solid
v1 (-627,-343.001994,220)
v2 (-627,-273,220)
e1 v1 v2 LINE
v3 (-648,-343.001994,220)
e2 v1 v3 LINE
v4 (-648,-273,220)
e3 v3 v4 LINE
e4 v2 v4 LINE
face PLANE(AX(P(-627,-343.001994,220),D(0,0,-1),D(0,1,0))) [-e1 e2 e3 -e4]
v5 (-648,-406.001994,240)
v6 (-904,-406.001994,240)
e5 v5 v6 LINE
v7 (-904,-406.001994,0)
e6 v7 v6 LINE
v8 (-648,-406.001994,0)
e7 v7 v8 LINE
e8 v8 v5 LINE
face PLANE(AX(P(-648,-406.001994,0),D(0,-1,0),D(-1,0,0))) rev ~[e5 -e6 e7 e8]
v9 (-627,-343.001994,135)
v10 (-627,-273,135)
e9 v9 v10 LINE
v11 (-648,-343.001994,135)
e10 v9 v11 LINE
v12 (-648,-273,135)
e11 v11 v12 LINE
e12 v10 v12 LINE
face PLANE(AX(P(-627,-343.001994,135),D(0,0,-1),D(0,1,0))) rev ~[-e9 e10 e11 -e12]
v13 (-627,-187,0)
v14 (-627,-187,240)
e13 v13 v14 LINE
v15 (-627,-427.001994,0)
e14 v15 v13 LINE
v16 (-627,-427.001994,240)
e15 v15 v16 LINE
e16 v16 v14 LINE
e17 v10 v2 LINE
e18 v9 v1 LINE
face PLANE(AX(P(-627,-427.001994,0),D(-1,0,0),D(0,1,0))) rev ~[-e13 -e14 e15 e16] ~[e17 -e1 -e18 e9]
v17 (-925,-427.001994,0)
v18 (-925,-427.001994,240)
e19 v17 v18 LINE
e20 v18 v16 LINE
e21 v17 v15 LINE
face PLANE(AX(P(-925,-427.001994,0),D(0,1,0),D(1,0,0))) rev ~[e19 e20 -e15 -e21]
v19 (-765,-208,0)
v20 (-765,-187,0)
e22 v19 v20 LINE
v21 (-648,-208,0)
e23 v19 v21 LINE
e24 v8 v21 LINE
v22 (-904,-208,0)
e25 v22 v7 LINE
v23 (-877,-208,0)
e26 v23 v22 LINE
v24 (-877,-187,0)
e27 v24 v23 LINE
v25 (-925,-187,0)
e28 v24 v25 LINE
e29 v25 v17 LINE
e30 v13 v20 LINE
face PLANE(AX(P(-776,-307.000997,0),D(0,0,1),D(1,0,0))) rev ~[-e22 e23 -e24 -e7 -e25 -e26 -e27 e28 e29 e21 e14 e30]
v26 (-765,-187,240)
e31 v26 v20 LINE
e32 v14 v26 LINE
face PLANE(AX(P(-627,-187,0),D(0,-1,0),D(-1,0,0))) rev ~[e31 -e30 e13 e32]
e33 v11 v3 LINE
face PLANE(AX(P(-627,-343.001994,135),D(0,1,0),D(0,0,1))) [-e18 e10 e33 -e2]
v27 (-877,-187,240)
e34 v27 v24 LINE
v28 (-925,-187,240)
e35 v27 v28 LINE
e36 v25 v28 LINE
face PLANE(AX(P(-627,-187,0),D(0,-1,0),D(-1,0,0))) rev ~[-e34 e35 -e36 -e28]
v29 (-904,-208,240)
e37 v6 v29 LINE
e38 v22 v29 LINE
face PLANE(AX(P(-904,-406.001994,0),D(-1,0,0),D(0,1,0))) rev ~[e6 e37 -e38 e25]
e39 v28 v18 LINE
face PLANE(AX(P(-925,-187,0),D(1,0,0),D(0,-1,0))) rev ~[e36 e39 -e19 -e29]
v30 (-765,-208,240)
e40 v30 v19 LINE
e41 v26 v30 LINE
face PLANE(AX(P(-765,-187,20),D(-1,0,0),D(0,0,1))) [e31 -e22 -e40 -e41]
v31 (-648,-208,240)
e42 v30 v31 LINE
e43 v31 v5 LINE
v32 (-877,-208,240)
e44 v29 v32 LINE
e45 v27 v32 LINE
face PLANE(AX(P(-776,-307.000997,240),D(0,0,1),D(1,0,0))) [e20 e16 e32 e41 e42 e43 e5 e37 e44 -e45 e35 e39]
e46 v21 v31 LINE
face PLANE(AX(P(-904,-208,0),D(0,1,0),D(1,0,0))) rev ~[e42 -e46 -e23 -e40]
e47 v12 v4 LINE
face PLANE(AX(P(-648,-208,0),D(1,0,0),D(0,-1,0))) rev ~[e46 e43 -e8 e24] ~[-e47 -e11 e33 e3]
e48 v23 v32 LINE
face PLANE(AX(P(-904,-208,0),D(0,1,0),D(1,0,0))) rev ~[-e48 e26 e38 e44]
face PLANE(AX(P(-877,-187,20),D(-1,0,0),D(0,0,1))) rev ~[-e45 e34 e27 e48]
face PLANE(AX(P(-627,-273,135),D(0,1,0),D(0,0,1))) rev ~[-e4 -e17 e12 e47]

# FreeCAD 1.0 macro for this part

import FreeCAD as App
import Part
import Sketcher
from FreeCAD import Vector
Q = App.Units.Quantity


def add_polygon(sketch, points):
    """Adds a closed chain of lines whose ends are joined by coincident constraints."""
    first, n = sketch.GeometryCount, len(points)
    for a, b in zip(points, points[1:] + points[:1]):
        sketch.addGeometry(Part.LineSegment(App.Vector(*a, 0), App.Vector(*b, 0)), False)
    for i in range(n):
        sketch.addConstraint(Sketcher.Constraint("Coincident", first + i, 2, first + (i + 1) % n, 1))

doc = App.newDocument("Part")
params = doc.addObject("Spreadsheet::Sheet", "Params")
for row, (alias, value) in enumerate([
    ("sketch1_width", "298 mm"),
    ("sketch1_width2", "256 mm"),
    ("pad1_length", "240 mm"),
    ("sketch2_width", "256 mm"),
    ("pad2_length", "20 mm"),
    ("sketch3_width", "112 mm"),
    ("pocket1_length", "25 mm"),
    ("sketch4_height", "85 mm"),
    ("pocket2_length", "25 mm"),
    ("sketch5_width", "50 mm"),
    ("pad3_length", "50 mm"),
    ("sketch6_width", "112 mm"),
    ("sketch6_width2", "27 mm"),
    ("sketch6_width3", "206 mm"),
    ("sketch6_height", "21 mm"),
    ("pocket3_length", "25 mm"),
    ("sketch7_width", "50 mm"),
], start=1):
    params.set(f"A{row}", alias)
    params.set(f"B{row}", "=" + value)
    params.setAlias(f"B{row}", alias)

body = doc.addObject("PartDesign::Body", "Body")

# Sketch on XY plane
sketch1 = body.newObject("Sketcher::SketchObject", "Sketch")
sketch1.AttachmentSupport = (doc.getObject("XY_Plane"), [""])
sketch1.MapMode = "FlatFace"
add_polygon(sketch1, [(-627, -187), (-925, -187), (-925, -427), (-627, -427)])  # lines 0-3
add_polygon(sketch1, [(-904, -208), (-648, -208), (-648, -406), (-904, -406)])  # lines 4-7
sketch1.addConstraint(Sketcher.Constraint("Horizontal", 0))
sketch1.addConstraint(Sketcher.Constraint("Vertical", 1))
sketch1.addConstraint(Sketcher.Constraint("Horizontal", 2))
sketch1.addConstraint(Sketcher.Constraint("Vertical", 3))
sketch1.addConstraint(Sketcher.Constraint("Horizontal", 4))
sketch1.addConstraint(Sketcher.Constraint("Vertical", 5))
sketch1.addConstraint(Sketcher.Constraint("Horizontal", 6))
sketch1.addConstraint(Sketcher.Constraint("Vertical", 7))
sketch1.addConstraint(Sketcher.Constraint("DistanceX", 0, 2, 0, 1, Q("298 mm")))
sketch1.addConstraint(Sketcher.Constraint("DistanceX", 4, 1, 4, 2, Q("256 mm")))
sketch1.addConstraint(Sketcher.Constraint("DistanceX", 0, 2, -1, 1, Q("925 mm")))
sketch1.addConstraint(Sketcher.Constraint("DistanceY", 0, 2, -1, 1, Q("187 mm")))
sketch1.addConstraint(Sketcher.Constraint("DistanceX", 4, 2, -1, 1, Q("648 mm")))
sketch1.addConstraint(Sketcher.Constraint("DistanceY", 4, 2, -1, 1, Q("208 mm")))
sketch1.addConstraint(Sketcher.Constraint("DistanceY", 2, 2, 5, 2, Q("21 mm")))
sketch1.addConstraint(Sketcher.Constraint("DistanceY", 1, 2, 1, 1, Q("240.001994 mm")))
sketch1.setExpression("Constraints[16]", "Params.sketch1_width")
sketch1.setExpression("Constraints[17]", "Params.sketch1_width2")
pad1 = body.newObject("PartDesign::Pad", "Pad")
pad1.Profile = sketch1
pad1.setExpression("Length", "Params.pad1_length")

# Sketch on XY plane
sketch2 = body.newObject("Sketcher::SketchObject", "Sketch001")
sketch2.AttachmentSupport = (doc.getObject("XY_Plane"), [""])
sketch2.MapMode = "FlatFace"
add_polygon(sketch2, [(-648, -208), (-904, -208), (-904, -406), (-648, -406)])  # lines 0-3
sketch2.addConstraint(Sketcher.Constraint("Horizontal", 0))
sketch2.addConstraint(Sketcher.Constraint("Vertical", 1))
sketch2.addConstraint(Sketcher.Constraint("Horizontal", 2))
sketch2.addConstraint(Sketcher.Constraint("Vertical", 3))
sketch2.addConstraint(Sketcher.Constraint("DistanceX", 0, 2, 0, 1, Q("256 mm")))
sketch2.addConstraint(Sketcher.Constraint("DistanceX", 0, 2, -1, 1, Q("904 mm")))
sketch2.addConstraint(Sketcher.Constraint("DistanceY", 0, 2, -1, 1, Q("208 mm")))
sketch2.addConstraint(Sketcher.Constraint("DistanceY", 1, 2, 1, 1, Q("198.001994 mm")))
sketch2.setExpression("Constraints[8]", "Params.sketch2_width")
pad2 = body.newObject("PartDesign::Pad", "Pad001")
pad2.Profile = sketch2
pad2.setExpression("Length", "Params.pad2_length")

# Sketch on XZ plane
sketch3 = body.newObject("Sketcher::SketchObject", "Sketch002")
sketch3.AttachmentSupport = (doc.getObject("XZ_Plane"), [""])
sketch3.MapMode = "FlatFace"
sketch3.AttachmentOffset = App.Placement(Vector(0, 0, 187), App.Rotation())
add_polygon(sketch3, [(-765, 261), (-765, 20), (-877, 20), (-877, 261)])  # lines 0-3
sketch3.addConstraint(Sketcher.Constraint("Vertical", 0))
sketch3.addConstraint(Sketcher.Constraint("Horizontal", 1))
sketch3.addConstraint(Sketcher.Constraint("Vertical", 2))
sketch3.addConstraint(Sketcher.Constraint("Horizontal", 3))
sketch3.addConstraint(Sketcher.Constraint("DistanceX", 1, 2, 1, 1, Q("112 mm")))
sketch3.addConstraint(Sketcher.Constraint("DistanceX", 0, 2, -1, 1, Q("765 mm")))
sketch3.addConstraint(Sketcher.Constraint("DistanceY", -1, 1, 0, 2, Q("20 mm")))
sketch3.addConstraint(Sketcher.Constraint("DistanceY", 0, 2, 0, 1, Q("241.106075 mm")))
sketch3.setExpression("Constraints[8]", "Params.sketch3_width")
pocket1 = body.newObject("PartDesign::Pocket", "Pocket")
pocket1.Profile = sketch3
pocket1.setExpression("Length", "Params.pocket1_length")
pocket1.Reversed = True

# Sketch on YZ plane
sketch4 = body.newObject("Sketcher::SketchObject", "Sketch003")
sketch4.AttachmentSupport = (doc.getObject("YZ_Plane"), [""])
sketch4.MapMode = "FlatFace"
sketch4.AttachmentOffset = App.Placement(Vector(0, 0, -627), App.Rotation())
add_polygon(sketch4, [(-343, 220), (-343, 135), (-273, 135), (-273, 220)])  # lines 0-3
sketch4.addConstraint(Sketcher.Constraint("Vertical", 0))
sketch4.addConstraint(Sketcher.Constraint("Horizontal", 1))
sketch4.addConstraint(Sketcher.Constraint("Vertical", 2))
sketch4.addConstraint(Sketcher.Constraint("Horizontal", 3))
sketch4.addConstraint(Sketcher.Constraint("DistanceY", 0, 2, 0, 1, Q("85 mm")))
sketch4.addConstraint(Sketcher.Constraint("DistanceY", -1, 1, 0, 2, Q("135 mm")))
sketch4.addConstraint(Sketcher.Constraint("DistanceX", 1, 2, -1, 1, Q("273 mm")))
sketch4.addConstraint(Sketcher.Constraint("DistanceX", 1, 1, 1, 2, Q("70.001994 mm")))
sketch4.setExpression("Constraints[8]", "Params.sketch4_height")
pocket2 = body.newObject("PartDesign::Pocket", "Pocket001")
pocket2.Profile = sketch4
pocket2.setExpression("Length", "Params.pocket2_length")

# Sketch on XY plane
sketch5 = body.newObject("Sketcher::SketchObject", "Sketch004")
sketch5.AttachmentSupport = (doc.getObject("XY_Plane"), [""])
sketch5.MapMode = "FlatFace"
sketch5.AttachmentOffset = App.Placement(Vector(0, 0, 20), App.Rotation())
add_polygon(sketch5, [(-698, -208), (-698, -406), (-648, -406), (-648, -208)])  # lines 0-3
sketch5.addConstraint(Sketcher.Constraint("Vertical", 0))
sketch5.addConstraint(Sketcher.Constraint("Horizontal", 1))
sketch5.addConstraint(Sketcher.Constraint("Vertical", 2))
sketch5.addConstraint(Sketcher.Constraint("Horizontal", 3))
sketch5.addConstraint(Sketcher.Constraint("DistanceX", 1, 1, 1, 2, Q("50 mm")))
sketch5.addConstraint(Sketcher.Constraint("DistanceX", 0, 2, -1, 1, Q("698 mm")))
sketch5.addConstraint(Sketcher.Constraint("DistanceY", 2, 2, -1, 1, Q("208 mm")))
sketch5.addConstraint(Sketcher.Constraint("DistanceY", 0, 2, 0, 1, Q("198.001994 mm")))
sketch5.setExpression("Constraints[8]", "Params.sketch5_width")
pad3 = body.newObject("PartDesign::Pad", "Pad002")
pad3.Profile = sketch5
pad3.setExpression("Length", "Params.pad3_length")

# Sketch on XY plane
sketch6 = body.newObject("Sketcher::SketchObject", "Sketch005")
sketch6.AttachmentSupport = (doc.getObject("XY_Plane"), [""])
sketch6.MapMode = "FlatFace"
sketch6.AttachmentOffset = App.Placement(Vector(0, 0, 20), App.Rotation())
add_polygon(sketch6, [(-765, -187), (-877, -187), (-877, -208), (-904, -208), (-904, -406), (-698, -406), (-698, -208), (-765, -208)])  # lines 0-7
sketch6.addConstraint(Sketcher.Constraint("Horizontal", 0))
sketch6.addConstraint(Sketcher.Constraint("Vertical", 1))
sketch6.addConstraint(Sketcher.Constraint("Horizontal", 2))
sketch6.addConstraint(Sketcher.Constraint("Vertical", 3))
sketch6.addConstraint(Sketcher.Constraint("Horizontal", 4))
sketch6.addConstraint(Sketcher.Constraint("Vertical", 5))
sketch6.addConstraint(Sketcher.Constraint("Horizontal", 6))
sketch6.addConstraint(Sketcher.Constraint("Vertical", 7))
sketch6.addConstraint(Sketcher.Constraint("Horizontal", 2, 2, 5, 2))
sketch6.addConstraint(Sketcher.Constraint("DistanceX", 0, 2, 0, 1, Q("112 mm")))
sketch6.addConstraint(Sketcher.Constraint("DistanceX", 2, 2, 2, 1, Q("27 mm")))
sketch6.addConstraint(Sketcher.Constraint("DistanceX", 4, 1, 4, 2, Q("206 mm")))
sketch6.addConstraint(Sketcher.Constraint("DistanceY", 1, 2, 1, 1, Q("21 mm")))
sketch6.addConstraint(Sketcher.Constraint("DistanceX", 0, 2, -1, 1, Q("877 mm")))
sketch6.addConstraint(Sketcher.Constraint("DistanceY", 0, 2, -1, 1, Q("187 mm")))
sketch6.addConstraint(Sketcher.Constraint("DistanceY", 3, 2, 3, 1, Q("198.001994 mm")))
sketch6.setExpression("Constraints[17]", "Params.sketch6_width")
sketch6.setExpression("Constraints[18]", "Params.sketch6_width2")
sketch6.setExpression("Constraints[19]", "Params.sketch6_width3")
sketch6.setExpression("Constraints[20]", "Params.sketch6_height")
pocket3 = body.newObject("PartDesign::Pocket", "Pocket002")
pocket3.Profile = sketch6
pocket3.setExpression("Length", "Params.pocket3_length")

# Sketch on XY plane
sketch7 = body.newObject("Sketcher::SketchObject", "Sketch006")
sketch7.AttachmentSupport = (doc.getObject("XY_Plane"), [""])
sketch7.MapMode = "FlatFace"
sketch7.AttachmentOffset = App.Placement(Vector(0, 0, 70), App.Rotation())
add_polygon(sketch7, [(-698, -208), (-698, -406), (-648, -406), (-648, -208)])  # lines 0-3
sketch7.addConstraint(Sketcher.Constraint("Vertical", 0))
sketch7.addConstraint(Sketcher.Constraint("Horizontal", 1))
sketch7.addConstraint(Sketcher.Constraint("Vertical", 2))
sketch7.addConstraint(Sketcher.Constraint("Horizontal", 3))
sketch7.addConstraint(Sketcher.Constraint("DistanceX", 1, 1, 1, 2, Q("50 mm")))
sketch7.addConstraint(Sketcher.Constraint("DistanceX", 0, 2, -1, 1, Q("698 mm")))
sketch7.addConstraint(Sketcher.Constraint("DistanceY", 2, 2, -1, 1, Q("208 mm")))
sketch7.addConstraint(Sketcher.Constraint("DistanceY", 0, 2, 0, 1, Q("198.001994 mm")))
sketch7.setExpression("Constraints[8]", "Params.sketch7_width")
pocket4 = body.newObject("PartDesign::Pocket", "Pocket003")
pocket4.Profile = sketch7
pocket4.Type = "ThroughAll"

doc.recompute()
